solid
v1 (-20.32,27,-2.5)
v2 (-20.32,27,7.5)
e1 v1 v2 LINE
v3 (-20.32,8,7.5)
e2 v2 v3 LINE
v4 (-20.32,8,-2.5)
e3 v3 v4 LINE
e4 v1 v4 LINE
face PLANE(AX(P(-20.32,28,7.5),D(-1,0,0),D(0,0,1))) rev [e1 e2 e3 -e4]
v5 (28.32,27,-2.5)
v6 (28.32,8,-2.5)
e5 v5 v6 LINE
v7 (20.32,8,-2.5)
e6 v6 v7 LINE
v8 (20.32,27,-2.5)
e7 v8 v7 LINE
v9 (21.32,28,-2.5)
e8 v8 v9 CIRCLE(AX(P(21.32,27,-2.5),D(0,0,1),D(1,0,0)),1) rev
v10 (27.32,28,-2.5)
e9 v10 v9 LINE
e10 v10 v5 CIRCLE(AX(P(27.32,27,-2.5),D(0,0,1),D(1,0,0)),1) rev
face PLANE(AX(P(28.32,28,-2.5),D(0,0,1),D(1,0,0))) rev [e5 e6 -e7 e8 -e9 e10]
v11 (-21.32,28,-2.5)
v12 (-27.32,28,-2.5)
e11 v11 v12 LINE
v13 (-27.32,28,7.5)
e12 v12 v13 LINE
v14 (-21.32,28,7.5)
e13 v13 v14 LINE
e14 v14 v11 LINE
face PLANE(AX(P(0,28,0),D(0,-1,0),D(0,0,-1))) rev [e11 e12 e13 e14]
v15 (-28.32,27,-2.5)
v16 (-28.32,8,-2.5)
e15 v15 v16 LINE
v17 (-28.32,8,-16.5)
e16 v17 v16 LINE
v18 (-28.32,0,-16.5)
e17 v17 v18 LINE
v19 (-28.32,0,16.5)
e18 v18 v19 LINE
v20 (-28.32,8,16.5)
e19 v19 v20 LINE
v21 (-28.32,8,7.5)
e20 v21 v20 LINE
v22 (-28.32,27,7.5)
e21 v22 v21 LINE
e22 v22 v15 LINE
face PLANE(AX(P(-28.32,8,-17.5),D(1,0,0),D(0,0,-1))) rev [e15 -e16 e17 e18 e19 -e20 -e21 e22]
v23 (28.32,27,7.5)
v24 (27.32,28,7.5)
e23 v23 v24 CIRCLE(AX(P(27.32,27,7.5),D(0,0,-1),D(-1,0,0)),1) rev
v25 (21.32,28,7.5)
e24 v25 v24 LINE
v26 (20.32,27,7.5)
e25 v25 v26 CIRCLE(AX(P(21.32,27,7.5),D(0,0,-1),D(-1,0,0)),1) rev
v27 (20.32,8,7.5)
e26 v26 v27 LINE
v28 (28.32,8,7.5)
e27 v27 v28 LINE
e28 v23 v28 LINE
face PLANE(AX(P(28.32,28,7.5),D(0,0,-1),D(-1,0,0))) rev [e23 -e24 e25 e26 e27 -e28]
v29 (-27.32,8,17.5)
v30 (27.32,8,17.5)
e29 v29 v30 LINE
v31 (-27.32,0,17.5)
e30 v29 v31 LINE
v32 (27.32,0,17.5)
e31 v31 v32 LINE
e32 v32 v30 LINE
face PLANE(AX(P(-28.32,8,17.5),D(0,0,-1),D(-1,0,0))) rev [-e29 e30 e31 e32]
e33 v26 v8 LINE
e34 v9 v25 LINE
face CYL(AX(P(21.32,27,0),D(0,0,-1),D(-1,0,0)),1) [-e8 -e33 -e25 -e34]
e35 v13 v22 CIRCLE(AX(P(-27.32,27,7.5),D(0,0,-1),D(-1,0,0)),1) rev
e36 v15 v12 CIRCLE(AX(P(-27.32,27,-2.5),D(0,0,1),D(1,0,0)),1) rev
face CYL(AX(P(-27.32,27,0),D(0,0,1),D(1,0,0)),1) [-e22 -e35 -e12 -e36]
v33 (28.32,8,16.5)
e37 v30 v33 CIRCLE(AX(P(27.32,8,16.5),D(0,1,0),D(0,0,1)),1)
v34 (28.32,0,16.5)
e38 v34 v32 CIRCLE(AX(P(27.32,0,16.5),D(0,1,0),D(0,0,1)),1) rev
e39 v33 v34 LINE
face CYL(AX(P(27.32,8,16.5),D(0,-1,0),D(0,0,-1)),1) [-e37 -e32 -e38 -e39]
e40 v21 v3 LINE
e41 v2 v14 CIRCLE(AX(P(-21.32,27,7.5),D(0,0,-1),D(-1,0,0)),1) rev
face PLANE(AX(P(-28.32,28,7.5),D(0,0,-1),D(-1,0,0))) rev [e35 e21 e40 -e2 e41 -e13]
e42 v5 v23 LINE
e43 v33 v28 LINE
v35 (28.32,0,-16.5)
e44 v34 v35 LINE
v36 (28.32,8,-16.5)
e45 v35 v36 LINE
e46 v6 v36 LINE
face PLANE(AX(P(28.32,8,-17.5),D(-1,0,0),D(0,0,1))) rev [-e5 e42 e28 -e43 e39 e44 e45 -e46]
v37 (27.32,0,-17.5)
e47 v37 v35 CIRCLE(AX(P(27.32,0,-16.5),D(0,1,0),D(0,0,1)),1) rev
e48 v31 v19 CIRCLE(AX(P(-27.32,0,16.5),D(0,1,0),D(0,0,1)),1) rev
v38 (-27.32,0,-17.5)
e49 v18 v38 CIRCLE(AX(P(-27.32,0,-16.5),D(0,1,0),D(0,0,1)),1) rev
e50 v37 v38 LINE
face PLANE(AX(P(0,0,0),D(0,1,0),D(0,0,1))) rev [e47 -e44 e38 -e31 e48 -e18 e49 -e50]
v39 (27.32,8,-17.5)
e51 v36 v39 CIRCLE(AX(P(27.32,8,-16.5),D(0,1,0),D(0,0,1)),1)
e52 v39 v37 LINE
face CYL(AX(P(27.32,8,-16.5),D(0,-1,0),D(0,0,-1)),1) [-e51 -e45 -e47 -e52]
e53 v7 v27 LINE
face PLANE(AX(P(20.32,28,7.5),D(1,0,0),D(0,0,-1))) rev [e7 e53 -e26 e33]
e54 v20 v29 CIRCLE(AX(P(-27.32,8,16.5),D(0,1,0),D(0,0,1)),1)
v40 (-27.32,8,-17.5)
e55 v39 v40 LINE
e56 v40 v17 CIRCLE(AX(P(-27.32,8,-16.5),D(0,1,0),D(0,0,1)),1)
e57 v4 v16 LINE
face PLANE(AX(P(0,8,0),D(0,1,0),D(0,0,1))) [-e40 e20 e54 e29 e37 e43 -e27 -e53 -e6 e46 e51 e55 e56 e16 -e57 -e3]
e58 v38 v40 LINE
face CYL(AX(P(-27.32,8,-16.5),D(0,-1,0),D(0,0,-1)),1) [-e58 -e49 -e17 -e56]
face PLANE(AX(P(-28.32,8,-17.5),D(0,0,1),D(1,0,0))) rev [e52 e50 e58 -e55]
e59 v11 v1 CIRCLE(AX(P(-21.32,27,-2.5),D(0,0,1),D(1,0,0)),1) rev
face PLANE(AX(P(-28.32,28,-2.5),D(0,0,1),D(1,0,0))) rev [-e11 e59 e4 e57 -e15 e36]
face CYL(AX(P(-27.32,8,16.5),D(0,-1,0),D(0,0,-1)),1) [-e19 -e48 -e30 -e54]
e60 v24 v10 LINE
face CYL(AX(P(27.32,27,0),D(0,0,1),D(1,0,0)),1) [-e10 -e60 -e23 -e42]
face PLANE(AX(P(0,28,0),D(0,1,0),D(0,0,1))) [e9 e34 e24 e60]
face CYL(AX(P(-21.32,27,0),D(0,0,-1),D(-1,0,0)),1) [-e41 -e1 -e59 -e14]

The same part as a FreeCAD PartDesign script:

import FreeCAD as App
import Part
import Sketcher
Q = App.Units.Quantity


def edges_at(feature, points):
    """Names of the edges that pass closest to the given points."""
    edges = feature.Shape.Edges
    near = lambda p: min(range(len(edges)), key=lambda i: edges[i].distToShape(Part.Vertex(*p))[0])
    return sorted({f"Edge{near(p) + 1}" for p in points})


def add_polygon(sketch, points):
    """Adds a closed chain of lines whose ends are joined by coincident constraints."""
    first, n = sketch.GeometryCount, len(points)
    for a, b in zip(points, points[1:] + points[:1]):
        sketch.addGeometry(Part.LineSegment(App.Vector(*a, 0), App.Vector(*b, 0)), False)
    for i in range(n):
        sketch.addConstraint(Sketcher.Constraint("Coincident", first + i, 2, first + (i + 1) % n, 1))

doc = App.newDocument("Part")
body = doc.addObject("PartDesign::Body", "Body")

# Sketch on XZ plane
sketch1 = body.newObject("Sketcher::SketchObject", "Sketch")
sketch1.AttachmentSupport = (doc.getObject("XZ_Plane"), [""])
sketch1.MapMode = "FlatFace"
add_polygon(sketch1, [(-28, -18), (-28, 18), (28, 18), (28, -18)])  # lines 0-3
sketch1.addConstraint(Sketcher.Constraint("Vertical", 0))
sketch1.addConstraint(Sketcher.Constraint("Horizontal", 1))
sketch1.addConstraint(Sketcher.Constraint("Vertical", 2))
sketch1.addConstraint(Sketcher.Constraint("Horizontal", 3))
sketch1.addConstraint(Sketcher.Constraint("Symmetric", 0, 2, 2, 2, -1, 1))
sketch1.addConstraint(Sketcher.Constraint("DistanceY", 0, 1, 0, 2, Q("35 mm")))
sketch1.addConstraint(Sketcher.Constraint("DistanceX", 1, 1, 1, 2, Q("56.64 mm")))
pad1 = body.newObject("PartDesign::Pad", "Pad")
pad1.Profile = sketch1
pad1.Length = 8
pad1.Reversed = True

# Sketch on XZ plane
sketch2 = body.newObject("Sketcher::SketchObject", "Sketch001")
sketch2.AttachmentSupport = (doc.getObject("XZ_Plane"), [""])
sketch2.MapMode = "FlatFace"
sketch2.AttachmentOffset = App.Placement(App.Vector(0, 0, -8), App.Rotation())
add_polygon(sketch2, [(-28, -2), (-28, 8), (-20, 8), (-20, -2)])  # lines 0-3
add_polygon(sketch2, [(20, -2), (20, 8), (28, 8), (28, -2)])  # lines 4-7
sketch2.addConstraint(Sketcher.Constraint("Vertical", 0))
sketch2.addConstraint(Sketcher.Constraint("Horizontal", 1))
sketch2.addConstraint(Sketcher.Constraint("Vertical", 2))
sketch2.addConstraint(Sketcher.Constraint("Horizontal", 3))
sketch2.addConstraint(Sketcher.Constraint("Vertical", 4))
sketch2.addConstraint(Sketcher.Constraint("Horizontal", 5))
sketch2.addConstraint(Sketcher.Constraint("Vertical", 6))
sketch2.addConstraint(Sketcher.Constraint("Horizontal", 7))
sketch2.addConstraint(Sketcher.Constraint("Symmetric", 1, 2, 4, 2, -2))
sketch2.addConstraint(Sketcher.Constraint("Symmetric", 3, 2, 6, 2, -2))
sketch2.addConstraint(Sketcher.Constraint("DistanceX", 1, 1, 1, 2, Q("8 mm")))
sketch2.addConstraint(Sketcher.Constraint("DistanceY", 0, 1, 0, 2, Q("10 mm")))
sketch2.addConstraint(Sketcher.Constraint("DistanceY", -1, 1, 0, 2, Q("7.5 mm")))
sketch2.addConstraint(Sketcher.Constraint("DistanceX", 0, 2, -1, 1, Q("28.32 mm")))
pad2 = body.newObject("PartDesign::Pad", "Pad001")
pad2.Profile = sketch2
pad2.Length = 20
pad2.Reversed = True
doc.recompute()

fillet = body.newObject("PartDesign::Fillet", "Fillet")
fillet.Base = (pad2, edges_at(pad2, [
    (-28.32, 28, 2.5),
    (-20.32, 28, 2.5),
    (28.32, 28, 2.5),
    (20.32, 28, 2.5),
    (28.32, 4, 17.5),
    (-28.32, 4, 17.5),
    (-28.32, 4, -17.5),
    (28.32, 4, -17.5),
]))
fillet.Radius = 1

doc.recompute()
